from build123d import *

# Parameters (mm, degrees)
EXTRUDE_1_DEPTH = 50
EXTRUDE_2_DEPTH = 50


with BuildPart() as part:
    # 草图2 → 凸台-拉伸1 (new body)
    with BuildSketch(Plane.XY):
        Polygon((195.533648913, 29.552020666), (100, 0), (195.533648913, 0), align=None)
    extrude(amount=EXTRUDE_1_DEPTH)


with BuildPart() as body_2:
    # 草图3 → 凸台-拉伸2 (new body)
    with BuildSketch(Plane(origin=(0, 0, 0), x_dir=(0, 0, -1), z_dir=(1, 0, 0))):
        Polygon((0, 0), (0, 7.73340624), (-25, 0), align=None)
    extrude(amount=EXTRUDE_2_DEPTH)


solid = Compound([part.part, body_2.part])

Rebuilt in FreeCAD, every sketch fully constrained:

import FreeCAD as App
import Part
import Sketcher

V = App.Vector

doc = App.newDocument("Part")
body = doc.addObject("PartDesign::Body", "Body")

# Sketch on XY plane
sketch1 = body.newObject("Sketcher::SketchObject", "Sketch")
sketch1.AttachmentSupport = (doc.getObject("XY_Plane"), [""])
sketch1.MapMode = "FlatFace"
sketch1.addGeometry(Part.LineSegment(V(196, 30, 0), V(100, 0, 0)), False)
sketch1.addGeometry(Part.LineSegment(V(100, 0, 0), V(196, 0, 0)), False)
sketch1.addGeometry(Part.LineSegment(V(196, 0, 0), V(196, 30, 0)), False)
sketch1.addConstraint(Sketcher.Constraint("Coincident", 0, 2, 1, 1))
sketch1.addConstraint(Sketcher.Constraint("Coincident", 1, 2, 2, 1))
sketch1.addConstraint(Sketcher.Constraint("Coincident", 2, 2, 0, 1))
sketch1.addConstraint(Sketcher.Constraint("Horizontal", 1))
sketch1.addConstraint(Sketcher.Constraint("Vertical", 2))
sketch1.addConstraint(Sketcher.Constraint("PointOnObject", 0, 2, -1))
sketch1.addConstraint(Sketcher.Constraint("Distance", 0, 100.0))
sketch1.addConstraint(Sketcher.Constraint("DistanceX", -1, 1, 0, 2, 100.0))
sketch1.addConstraint(Sketcher.Constraint("DistanceX", 1, 1, 1, 2, 95.533649))
pad1 = body.newObject("PartDesign::Pad", "Pad")
pad1.Profile = sketch1
pad1.Length = 50
body2 = doc.addObject("PartDesign::Body", "Body001")

# Sketch on YZ plane
sketch2 = body2.newObject("Sketcher::SketchObject", "Sketch001")
sketch2.AttachmentSupport = (doc.getObject("YZ_Plane001"), [""])
sketch2.MapMode = "FlatFace"
sketch2.addGeometry(Part.LineSegment(V(0, 0, 0), V(8, 0, 0)), False)
sketch2.addGeometry(Part.LineSegment(V(8, 0, 0), V(0, 25, 0)), False)
sketch2.addGeometry(Part.LineSegment(V(0, 25, 0), V(0, 0, 0)), False)
sketch2.addConstraint(Sketcher.Constraint("Coincident", 0, 2, 1, 1))
sketch2.addConstraint(Sketcher.Constraint("Coincident", 1, 2, 2, 1))
sketch2.addConstraint(Sketcher.Constraint("Coincident", 2, 2, 0, 1))
sketch2.addConstraint(Sketcher.Constraint("Horizontal", 0))
sketch2.addConstraint(Sketcher.Constraint("Vertical", 2))
sketch2.addConstraint(Sketcher.Constraint("Coincident", 2, 2, -1, 1))
sketch2.addConstraint(Sketcher.Constraint("DistanceY", 2, 2, 2, 1, 25.0))
sketch2.addConstraint(Sketcher.Constraint("Distance", 1, 26.16879))
pad2 = body2.newObject("PartDesign::Pad", "Pad001")
pad2.Profile = sketch2
pad2.Length = 50

doc.recompute()
